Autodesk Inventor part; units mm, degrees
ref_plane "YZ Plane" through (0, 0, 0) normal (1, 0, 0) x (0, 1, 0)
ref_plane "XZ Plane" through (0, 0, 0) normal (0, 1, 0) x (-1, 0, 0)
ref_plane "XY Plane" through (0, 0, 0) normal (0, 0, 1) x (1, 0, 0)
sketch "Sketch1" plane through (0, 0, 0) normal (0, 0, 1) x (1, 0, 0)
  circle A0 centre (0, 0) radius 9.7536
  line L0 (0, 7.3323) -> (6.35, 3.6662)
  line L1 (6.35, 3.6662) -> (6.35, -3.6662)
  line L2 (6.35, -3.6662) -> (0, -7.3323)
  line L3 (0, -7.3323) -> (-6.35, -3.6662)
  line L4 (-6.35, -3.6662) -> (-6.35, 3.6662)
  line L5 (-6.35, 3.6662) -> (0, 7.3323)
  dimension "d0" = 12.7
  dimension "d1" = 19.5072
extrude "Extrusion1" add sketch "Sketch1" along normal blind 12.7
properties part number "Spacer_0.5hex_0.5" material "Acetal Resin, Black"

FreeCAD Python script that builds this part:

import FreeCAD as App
import Part
import Sketcher
from FreeCAD import Vector
Q = App.Units.Quantity


def add_polygon(sketch, points):
    """Adds a closed chain of lines whose ends are joined by coincident constraints."""
    first, n = sketch.GeometryCount, len(points)
    for a, b in zip(points, points[1:] + points[:1]):
        sketch.addGeometry(Part.LineSegment(App.Vector(*a, 0), App.Vector(*b, 0)), False)
    for i in range(n):
        sketch.addConstraint(Sketcher.Constraint("Coincident", first + i, 2, first + (i + 1) % n, 1))

doc = App.newDocument("Part")
body = doc.addObject("PartDesign::Body", "Body")

# Sketch on XY plane
sketch1 = body.newObject("Sketcher::SketchObject", "Sketch")
sketch1.AttachmentSupport = (doc.getObject("XY_Plane"), [""])
sketch1.MapMode = "FlatFace"
sketch1.addGeometry(Part.Circle(Vector(0, 0, 0), Vector(0, 0, 1), 10), False)  # 0
add_polygon(sketch1, [(-6, 4), (0, 7), (6, 4), (6, -4), (0, -7), (-6, -4)])  # lines 1-6
sketch1.addConstraint(Sketcher.Constraint("Vertical", 3))
sketch1.addConstraint(Sketcher.Constraint("Vertical", 6))
sketch1.addConstraint(Sketcher.Constraint("Coincident", 0, 3, -1, 1))
sketch1.addConstraint(Sketcher.Constraint("Symmetric", 1, 2, 4, 2, -1, 1))
sketch1.addConstraint(Sketcher.Constraint("Symmetric", 2, 2, 5, 2, -1, 1))
sketch1.addConstraint(Sketcher.Constraint("PointOnObject", 1, 2, -2))
sketch1.addConstraint(Sketcher.Constraint("Parallel", 1, 4))
sketch1.addConstraint(Sketcher.Constraint("Horizontal", 3, 2, 5, 2))
sketch1.addConstraint(Sketcher.Constraint("Diameter", 0, Q("0.768 in")))
sketch1.addConstraint(Sketcher.Constraint("DistanceX", 5, 2, 3, 2, Q("0.5 in")))
sketch1.addConstraint(Sketcher.Constraint("Angle", 1, Q("29.9995 deg")))
sketch1.addConstraint(Sketcher.Constraint("DistanceY", 3, 2, 1, 2, Q("0.433 in")))
pad1 = body.newObject("PartDesign::Pad", "Pad")
pad1.Profile = sketch1
pad1.Length = Q("0.5 in")

doc.recompute()
